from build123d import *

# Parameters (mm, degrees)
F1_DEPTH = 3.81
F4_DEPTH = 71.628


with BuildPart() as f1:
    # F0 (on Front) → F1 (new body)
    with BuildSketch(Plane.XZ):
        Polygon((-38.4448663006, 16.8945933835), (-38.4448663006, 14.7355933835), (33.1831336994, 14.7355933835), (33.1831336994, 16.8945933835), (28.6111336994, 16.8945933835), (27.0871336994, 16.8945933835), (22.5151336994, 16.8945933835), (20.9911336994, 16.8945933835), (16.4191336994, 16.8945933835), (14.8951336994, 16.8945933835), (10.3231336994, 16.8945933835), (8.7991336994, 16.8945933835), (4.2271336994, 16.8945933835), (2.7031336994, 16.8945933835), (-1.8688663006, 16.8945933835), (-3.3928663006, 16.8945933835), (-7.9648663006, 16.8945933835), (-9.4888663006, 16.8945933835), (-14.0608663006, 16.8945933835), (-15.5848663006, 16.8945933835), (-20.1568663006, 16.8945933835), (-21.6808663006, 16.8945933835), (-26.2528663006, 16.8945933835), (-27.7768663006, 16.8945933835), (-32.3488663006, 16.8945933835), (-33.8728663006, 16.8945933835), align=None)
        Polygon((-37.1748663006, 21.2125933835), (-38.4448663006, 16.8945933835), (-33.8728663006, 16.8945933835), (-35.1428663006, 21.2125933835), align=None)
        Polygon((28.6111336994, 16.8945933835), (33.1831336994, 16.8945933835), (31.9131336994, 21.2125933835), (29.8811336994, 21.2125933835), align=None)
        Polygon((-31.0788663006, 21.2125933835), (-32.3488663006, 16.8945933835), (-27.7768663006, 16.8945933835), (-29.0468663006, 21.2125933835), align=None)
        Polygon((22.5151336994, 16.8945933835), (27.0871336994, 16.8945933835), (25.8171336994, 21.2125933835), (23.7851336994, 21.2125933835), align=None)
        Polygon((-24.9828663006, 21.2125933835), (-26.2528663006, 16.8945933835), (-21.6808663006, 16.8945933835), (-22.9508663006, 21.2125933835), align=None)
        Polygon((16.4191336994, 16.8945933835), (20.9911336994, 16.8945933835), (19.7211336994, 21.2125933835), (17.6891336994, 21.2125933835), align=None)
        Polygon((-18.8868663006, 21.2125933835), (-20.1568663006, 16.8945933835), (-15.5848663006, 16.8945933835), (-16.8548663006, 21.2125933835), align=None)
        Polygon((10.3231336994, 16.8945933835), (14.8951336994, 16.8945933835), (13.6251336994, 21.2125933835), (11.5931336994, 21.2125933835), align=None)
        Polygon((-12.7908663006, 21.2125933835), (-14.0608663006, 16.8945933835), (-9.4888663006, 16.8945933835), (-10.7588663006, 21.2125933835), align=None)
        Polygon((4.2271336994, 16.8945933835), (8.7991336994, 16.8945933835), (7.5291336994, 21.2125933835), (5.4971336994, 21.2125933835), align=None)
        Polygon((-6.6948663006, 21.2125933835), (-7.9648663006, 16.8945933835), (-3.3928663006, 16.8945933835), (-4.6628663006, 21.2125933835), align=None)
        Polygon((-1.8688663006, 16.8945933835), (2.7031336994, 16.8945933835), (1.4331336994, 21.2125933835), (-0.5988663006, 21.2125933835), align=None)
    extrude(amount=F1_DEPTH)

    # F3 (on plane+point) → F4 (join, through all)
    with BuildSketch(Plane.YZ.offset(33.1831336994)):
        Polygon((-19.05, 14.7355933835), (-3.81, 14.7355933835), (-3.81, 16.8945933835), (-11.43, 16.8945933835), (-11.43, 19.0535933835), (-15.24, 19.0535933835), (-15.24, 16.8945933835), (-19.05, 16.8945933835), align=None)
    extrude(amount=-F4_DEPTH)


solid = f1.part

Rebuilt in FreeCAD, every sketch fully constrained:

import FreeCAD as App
import Part
import Sketcher
from FreeCAD import Vector
Q = App.Units.Quantity

doc = App.newDocument("Part")
body = doc.addObject("PartDesign::Body", "Body")

sketch1 = body.newObject("Sketcher::SketchObject", "Sketch")
sketch1.AttachmentSupport = (doc.getObject("XZ_Plane"), [""])
sketch1.MapMode = "FlatFace"
sketch1.addGeometry([
    Part.LineSegment(Vector(-38.444866, 16.894593, 0), Vector(-38.444866, 14.735593, 0)),
    Part.LineSegment(Vector(-38.444866, 14.735593, 0), Vector(33.183134, 14.735593, 0)),
    Part.LineSegment(Vector(33.183134, 14.735593, 0), Vector(33.183134, 16.894593, 0)),
    Part.LineSegment(Vector(33.183134, 16.894593, 0), Vector(31.913134, 21.212593, 0)),
    Part.LineSegment(Vector(31.913134, 21.212593, 0), Vector(29.881134, 21.212593, 0)),
    Part.LineSegment(Vector(29.881134, 21.212593, 0), Vector(28.611134, 16.894593, 0)),
    Part.LineSegment(Vector(28.611134, 16.894593, 0), Vector(27.087134, 16.894593, 0)),
    Part.LineSegment(Vector(27.087134, 16.894593, 0), Vector(25.817134, 21.212593, 0)),
    Part.LineSegment(Vector(25.817134, 21.212593, 0), Vector(23.785134, 21.212593, 0)),
    Part.LineSegment(Vector(23.785134, 21.212593, 0), Vector(22.515134, 16.894593, 0)),
    Part.LineSegment(Vector(22.515134, 16.894593, 0), Vector(20.991134, 16.894593, 0)),
    Part.LineSegment(Vector(20.991134, 16.894593, 0), Vector(19.721134, 21.212593, 0)),
    Part.LineSegment(Vector(19.721134, 21.212593, 0), Vector(17.689134, 21.212593, 0)),
    Part.LineSegment(Vector(17.689134, 21.212593, 0), Vector(16.419134, 16.894593, 0)),
    Part.LineSegment(Vector(16.419134, 16.894593, 0), Vector(14.895134, 16.894593, 0)),
    Part.LineSegment(Vector(14.895134, 16.894593, 0), Vector(13.625134, 21.212593, 0)),
    Part.LineSegment(Vector(13.625134, 21.212593, 0), Vector(11.593134, 21.212593, 0)),
    Part.LineSegment(Vector(11.593134, 21.212593, 0), Vector(10.323134, 16.894593, 0)),
    Part.LineSegment(Vector(10.323134, 16.894593, 0), Vector(8.799134, 16.894593, 0)),
    Part.LineSegment(Vector(8.799134, 16.894593, 0), Vector(7.529134, 21.212593, 0)),
    Part.LineSegment(Vector(7.529134, 21.212593, 0), Vector(5.497134, 21.212593, 0)),
    Part.LineSegment(Vector(5.497134, 21.212593, 0), Vector(4.227134, 16.894593, 0)),
    Part.LineSegment(Vector(4.227134, 16.894593, 0), Vector(2.703134, 16.894593, 0)),
    Part.LineSegment(Vector(2.703134, 16.894593, 0), Vector(1.433134, 21.212593, 0)),
    Part.LineSegment(Vector(1.433134, 21.212593, 0), Vector(-0.598866, 21.212593, 0)),
    Part.LineSegment(Vector(-0.598866, 21.212593, 0), Vector(-1.868866, 16.894593, 0)),
    Part.LineSegment(Vector(-1.868866, 16.894593, 0), Vector(-3.392866, 16.894593, 0)),
    Part.LineSegment(Vector(-3.392866, 16.894593, 0), Vector(-4.662866, 21.212593, 0)),
    Part.LineSegment(Vector(-4.662866, 21.212593, 0), Vector(-6.694866, 21.212593, 0)),
    Part.LineSegment(Vector(-6.694866, 21.212593, 0), Vector(-7.964866, 16.894593, 0)),
    Part.LineSegment(Vector(-7.964866, 16.894593, 0), Vector(-9.488866, 16.894593, 0)),
    Part.LineSegment(Vector(-9.488866, 16.894593, 0), Vector(-10.758866, 21.212593, 0)),
    Part.LineSegment(Vector(-10.758866, 21.212593, 0), Vector(-12.790866, 21.212593, 0)),
    Part.LineSegment(Vector(-12.790866, 21.212593, 0), Vector(-14.060866, 16.894593, 0)),
    Part.LineSegment(Vector(-14.060866, 16.894593, 0), Vector(-15.584866, 16.894593, 0)),
    Part.LineSegment(Vector(-15.584866, 16.894593, 0), Vector(-16.854866, 21.212593, 0)),
    Part.LineSegment(Vector(-16.854866, 21.212593, 0), Vector(-18.886866, 21.212593, 0)),
    Part.LineSegment(Vector(-18.886866, 21.212593, 0), Vector(-20.156866, 16.894593, 0)),
    Part.LineSegment(Vector(-20.156866, 16.894593, 0), Vector(-21.680866, 16.894593, 0)),
    Part.LineSegment(Vector(-21.680866, 16.894593, 0), Vector(-22.950866, 21.212593, 0)),
    Part.LineSegment(Vector(-22.950866, 21.212593, 0), Vector(-24.982866, 21.212593, 0)),
    Part.LineSegment(Vector(-24.982866, 21.212593, 0), Vector(-26.252866, 16.894593, 0)),
    Part.LineSegment(Vector(-26.252866, 16.894593, 0), Vector(-27.776866, 16.894593, 0)),
    Part.LineSegment(Vector(-27.776866, 16.894593, 0), Vector(-29.046866, 21.212593, 0)),
    Part.LineSegment(Vector(-29.046866, 21.212593, 0), Vector(-31.078866, 21.212593, 0)),
    Part.LineSegment(Vector(-31.078866, 21.212593, 0), Vector(-32.348866, 16.894593, 0)),
    Part.LineSegment(Vector(-32.348866, 16.894593, 0), Vector(-33.872866, 16.894593, 0)),
    Part.LineSegment(Vector(-33.872866, 16.894593, 0), Vector(-35.142866, 21.212593, 0)),
    Part.LineSegment(Vector(-35.142866, 21.212593, 0), Vector(-37.174866, 21.212593, 0)),
    Part.LineSegment(Vector(-37.174866, 21.212593, 0), Vector(-38.444866, 16.894593, 0)),
], False)
sketch1.addConstraint([
    Sketcher.Constraint("Coincident", 0, 2, 1, 1),
    Sketcher.Constraint("Coincident", 1, 2, 2, 1),
    Sketcher.Constraint("Coincident", 2, 2, 3, 1),
    Sketcher.Constraint("Coincident", 3, 2, 4, 1),
    Sketcher.Constraint("Coincident", 4, 2, 5, 1),
    Sketcher.Constraint("Coincident", 5, 2, 6, 1),
    Sketcher.Constraint("Coincident", 6, 2, 7, 1),
    Sketcher.Constraint("Coincident", 7, 2, 8, 1),
    Sketcher.Constraint("Coincident", 8, 2, 9, 1),
    Sketcher.Constraint("Coincident", 9, 2, 10, 1),
    Sketcher.Constraint("Coincident", 10, 2, 11, 1),
    Sketcher.Constraint("Coincident", 11, 2, 12, 1),
    Sketcher.Constraint("Coincident", 12, 2, 13, 1),
    Sketcher.Constraint("Coincident", 13, 2, 14, 1),
    Sketcher.Constraint("Coincident", 14, 2, 15, 1),
    Sketcher.Constraint("Coincident", 15, 2, 16, 1),
    Sketcher.Constraint("Coincident", 16, 2, 17, 1),
    Sketcher.Constraint("Coincident", 17, 2, 18, 1),
    Sketcher.Constraint("Coincident", 18, 2, 19, 1),
    Sketcher.Constraint("Coincident", 19, 2, 20, 1),
    Sketcher.Constraint("Coincident", 20, 2, 21, 1),
    Sketcher.Constraint("Coincident", 21, 2, 22, 1),
    Sketcher.Constraint("Coincident", 22, 2, 23, 1),
    Sketcher.Constraint("Coincident", 23, 2, 24, 1),
    Sketcher.Constraint("Coincident", 24, 2, 25, 1),
    Sketcher.Constraint("Coincident", 25, 2, 26, 1),
    Sketcher.Constraint("Coincident", 26, 2, 27, 1),
    Sketcher.Constraint("Coincident", 27, 2, 28, 1),
    Sketcher.Constraint("Coincident", 28, 2, 29, 1),
    Sketcher.Constraint("Coincident", 29, 2, 30, 1),
    Sketcher.Constraint("Coincident", 30, 2, 31, 1),
    Sketcher.Constraint("Coincident", 31, 2, 32, 1),
    Sketcher.Constraint("Coincident", 32, 2, 33, 1),
    Sketcher.Constraint("Coincident", 33, 2, 34, 1),
    Sketcher.Constraint("Coincident", 34, 2, 35, 1),
    Sketcher.Constraint("Coincident", 35, 2, 36, 1),
    Sketcher.Constraint("Coincident", 36, 2, 37, 1),
    Sketcher.Constraint("Coincident", 37, 2, 38, 1),
    Sketcher.Constraint("Coincident", 38, 2, 39, 1),
    Sketcher.Constraint("Coincident", 39, 2, 40, 1),
    Sketcher.Constraint("Coincident", 40, 2, 41, 1),
    Sketcher.Constraint("Coincident", 41, 2, 42, 1),
    Sketcher.Constraint("Coincident", 42, 2, 43, 1),
    Sketcher.Constraint("Coincident", 43, 2, 44, 1),
    Sketcher.Constraint("Coincident", 44, 2, 45, 1),
    Sketcher.Constraint("Coincident", 45, 2, 46, 1),
    Sketcher.Constraint("Coincident", 46, 2, 47, 1),
    Sketcher.Constraint("Coincident", 47, 2, 48, 1),
    Sketcher.Constraint("Coincident", 48, 2, 49, 1),
    Sketcher.Constraint("Coincident", 49, 2, 0, 1),
    Sketcher.Constraint("Vertical", 0),
    Sketcher.Constraint("Horizontal", 1),
    Sketcher.Constraint("Vertical", 2),
    Sketcher.Constraint("Horizontal", 4),
    Sketcher.Constraint("Horizontal", 6),
    Sketcher.Constraint("Horizontal", 8),
    Sketcher.Constraint("Horizontal", 10),
    Sketcher.Constraint("Horizontal", 12),
    Sketcher.Constraint("Horizontal", 14),
    Sketcher.Constraint("Horizontal", 16),
    Sketcher.Constraint("Horizontal", 18),
    Sketcher.Constraint("Horizontal", 20),
    Sketcher.Constraint("Horizontal", 22),
    Sketcher.Constraint("Horizontal", 24),
    Sketcher.Constraint("Horizontal", 26),
    Sketcher.Constraint("Horizontal", 28),
    Sketcher.Constraint("Horizontal", 30),
    Sketcher.Constraint("Horizontal", 32),
    Sketcher.Constraint("Horizontal", 34),
    Sketcher.Constraint("Horizontal", 36),
    Sketcher.Constraint("Horizontal", 38),
    Sketcher.Constraint("Horizontal", 40),
    Sketcher.Constraint("Horizontal", 42),
    Sketcher.Constraint("Horizontal", 44),
    Sketcher.Constraint("Horizontal", 46),
    Sketcher.Constraint("Horizontal", 48),
    Sketcher.Constraint("Parallel", 3, 7),
    Sketcher.Constraint("Parallel", 5, 9),
    Sketcher.Constraint("Parallel", 7, 11),
    Sketcher.Constraint("Parallel", 9, 13),
    Sketcher.Constraint("Parallel", 11, 15),
    Sketcher.Constraint("Parallel", 13, 17),
    Sketcher.Constraint("Parallel", 15, 19),
    Sketcher.Constraint("Parallel", 17, 21),
    Sketcher.Constraint("Parallel", 19, 23),
    Sketcher.Constraint("Parallel", 21, 25),
    Sketcher.Constraint("Parallel", 23, 27),
    Sketcher.Constraint("Parallel", 25, 29),
    Sketcher.Constraint("Parallel", 27, 31),
    Sketcher.Constraint("Parallel", 29, 33),
    Sketcher.Constraint("Parallel", 31, 35),
    Sketcher.Constraint("Parallel", 33, 37),
    Sketcher.Constraint("Parallel", 35, 39),
    Sketcher.Constraint("Parallel", 37, 41),
    Sketcher.Constraint("Parallel", 39, 43),
    Sketcher.Constraint("Parallel", 41, 45),
    Sketcher.Constraint("Parallel", 43, 47),
    Sketcher.Constraint("Parallel", 45, 49),
    Sketcher.Constraint("Horizontal", 2, 2, 5, 2),
    Sketcher.Constraint("Horizontal", 4, 2, 7, 2),
    Sketcher.Constraint("Horizontal", 6, 2, 9, 2),
    Sketcher.Constraint("Horizontal", 8, 2, 11, 2),
    Sketcher.Constraint("Horizontal", 10, 2, 13, 2),
    Sketcher.Constraint("Horizontal", 12, 2, 15, 2),
    Sketcher.Constraint("Horizontal", 14, 2, 17, 2),
    Sketcher.Constraint("Horizontal", 16, 2, 19, 2),
    Sketcher.Constraint("Horizontal", 18, 2, 21, 2),
    Sketcher.Constraint("Horizontal", 20, 2, 23, 2),
    Sketcher.Constraint("Horizontal", 22, 2, 25, 2),
    Sketcher.Constraint("Horizontal", 24, 2, 27, 2),
    Sketcher.Constraint("Horizontal", 26, 2, 29, 2),
    Sketcher.Constraint("Horizontal", 28, 2, 31, 2),
    Sketcher.Constraint("Horizontal", 30, 2, 33, 2),
    Sketcher.Constraint("Horizontal", 32, 2, 35, 2),
    Sketcher.Constraint("Horizontal", 34, 2, 37, 2),
    Sketcher.Constraint("Horizontal", 36, 2, 39, 2),
    Sketcher.Constraint("Horizontal", 38, 2, 41, 2),
    Sketcher.Constraint("Horizontal", 40, 2, 43, 2),
    Sketcher.Constraint("Horizontal", 42, 2, 45, 2),
    Sketcher.Constraint("Horizontal", 44, 2, 47, 2),
    Sketcher.Constraint("Horizontal", 46, 2, 49, 2),
    Sketcher.Constraint("Equal", 4, 8),
    Sketcher.Constraint("Equal", 6, 10),
    Sketcher.Constraint("Equal", 8, 12),
    Sketcher.Constraint("Equal", 10, 14),
    Sketcher.Constraint("Equal", 12, 16),
    Sketcher.Constraint("Equal", 14, 18),
    Sketcher.Constraint("Equal", 16, 20),
    Sketcher.Constraint("Equal", 18, 22),
    Sketcher.Constraint("Equal", 20, 24),
    Sketcher.Constraint("Equal", 22, 26),
    Sketcher.Constraint("Equal", 24, 28),
    Sketcher.Constraint("Equal", 26, 30),
    Sketcher.Constraint("Equal", 28, 32),
    Sketcher.Constraint("Equal", 30, 34),
    Sketcher.Constraint("Equal", 32, 36),
    Sketcher.Constraint("Equal", 34, 38),
    Sketcher.Constraint("Equal", 36, 40),
    Sketcher.Constraint("Equal", 38, 42),
    Sketcher.Constraint("Equal", 40, 44),
    Sketcher.Constraint("Equal", 42, 46),
    Sketcher.Constraint("Equal", 44, 48),
    Sketcher.Constraint("Equal", 3, 5),
    Sketcher.Constraint("DistanceX", 1, 1, 1, 2, Q("2.82 in")),
    Sketcher.Constraint("DistanceX", 4, 2, 4, 1, Q("0.08 in")),
    Sketcher.Constraint("DistanceX", 6, 2, 6, 1, Q("0.06 in")),
    Sketcher.Constraint("DistanceY", 0, 2, 0, 1, Q("0.085 in")),
    Sketcher.Constraint("DistanceY", 2, 2, 3, 2, Q("0.17 in")),
    Sketcher.Constraint("DistanceX", 0, 2, -1, 1, 38.444866),
    Sketcher.Constraint("DistanceY", -1, 1, 0, 2, 14.735593),
])
pad1 = body.newObject("PartDesign::Pad", "Pad")
pad1.Profile = sketch1
pad1.Length = Q("0.15 in")

sketch2 = body.newObject("Sketcher::SketchObject", "Sketch001")
sketch2.AttachmentSupport = (doc.getObject("YZ_Plane"), [""])
sketch2.MapMode = "FlatFace"
sketch2.AttachmentOffset = App.Placement(Vector(0, 0, 33.183134), App.Rotation())
sketch2.addGeometry([
    Part.LineSegment(Vector(-19.05, 14.735593, 0), Vector(-3.81, 14.735593, 0)),
    Part.LineSegment(Vector(-3.81, 14.735593, 0), Vector(-3.81, 16.894593, 0)),
    Part.LineSegment(Vector(-3.81, 16.894593, 0), Vector(-11.43, 16.894593, 0)),
    Part.LineSegment(Vector(-11.43, 16.894593, 0), Vector(-11.43, 19.053593, 0)),
    Part.LineSegment(Vector(-11.43, 19.053593, 0), Vector(-15.24, 19.053593, 0)),
    Part.LineSegment(Vector(-15.24, 19.053593, 0), Vector(-15.24, 16.894593, 0)),
    Part.LineSegment(Vector(-15.24, 16.894593, 0), Vector(-19.05, 16.894593, 0)),
    Part.LineSegment(Vector(-19.05, 16.894593, 0), Vector(-19.05, 14.735593, 0)),
], False)
sketch2.addConstraint([
    Sketcher.Constraint("Coincident", 0, 2, 1, 1),
    Sketcher.Constraint("Coincident", 1, 2, 2, 1),
    Sketcher.Constraint("Coincident", 2, 2, 3, 1),
    Sketcher.Constraint("Coincident", 3, 2, 4, 1),
    Sketcher.Constraint("Coincident", 4, 2, 5, 1),
    Sketcher.Constraint("Coincident", 5, 2, 6, 1),
    Sketcher.Constraint("Coincident", 6, 2, 7, 1),
    Sketcher.Constraint("Coincident", 7, 2, 0, 1),
    Sketcher.Constraint("Horizontal", 0),
    Sketcher.Constraint("Vertical", 1),
    Sketcher.Constraint("Horizontal", 2),
    Sketcher.Constraint("Vertical", 3),
    Sketcher.Constraint("Horizontal", 4),
    Sketcher.Constraint("Vertical", 5),
    Sketcher.Constraint("Horizontal", 6),
    Sketcher.Constraint("Vertical", 7),
    Sketcher.Constraint("Horizontal", 2, 2, 5, 2),
    Sketcher.Constraint("Equal", 4, 6),
    Sketcher.Constraint("Equal", 1, 3),
    Sketcher.Constraint("DistanceX", 0, 1, 0, 2, Q("0.6 in")),
    Sketcher.Constraint("DistanceX", 2, 2, 2, 1, Q("0.3 in")),
    Sketcher.Constraint("DistanceX", 4, 2, -1, 1, Q("0.6 in")),
    Sketcher.Constraint("DistanceY", 1, 1, 1, 2, Q("0.085 in")),
    Sketcher.Constraint("DistanceY", -1, 1, 0, 2, 14.735593),
])
pad2 = body.newObject("PartDesign::Pad", "Pad001")
pad2.Profile = sketch2
pad2.Length = Q("2.82 in")
pad2.Reversed = True

doc.recompute()
